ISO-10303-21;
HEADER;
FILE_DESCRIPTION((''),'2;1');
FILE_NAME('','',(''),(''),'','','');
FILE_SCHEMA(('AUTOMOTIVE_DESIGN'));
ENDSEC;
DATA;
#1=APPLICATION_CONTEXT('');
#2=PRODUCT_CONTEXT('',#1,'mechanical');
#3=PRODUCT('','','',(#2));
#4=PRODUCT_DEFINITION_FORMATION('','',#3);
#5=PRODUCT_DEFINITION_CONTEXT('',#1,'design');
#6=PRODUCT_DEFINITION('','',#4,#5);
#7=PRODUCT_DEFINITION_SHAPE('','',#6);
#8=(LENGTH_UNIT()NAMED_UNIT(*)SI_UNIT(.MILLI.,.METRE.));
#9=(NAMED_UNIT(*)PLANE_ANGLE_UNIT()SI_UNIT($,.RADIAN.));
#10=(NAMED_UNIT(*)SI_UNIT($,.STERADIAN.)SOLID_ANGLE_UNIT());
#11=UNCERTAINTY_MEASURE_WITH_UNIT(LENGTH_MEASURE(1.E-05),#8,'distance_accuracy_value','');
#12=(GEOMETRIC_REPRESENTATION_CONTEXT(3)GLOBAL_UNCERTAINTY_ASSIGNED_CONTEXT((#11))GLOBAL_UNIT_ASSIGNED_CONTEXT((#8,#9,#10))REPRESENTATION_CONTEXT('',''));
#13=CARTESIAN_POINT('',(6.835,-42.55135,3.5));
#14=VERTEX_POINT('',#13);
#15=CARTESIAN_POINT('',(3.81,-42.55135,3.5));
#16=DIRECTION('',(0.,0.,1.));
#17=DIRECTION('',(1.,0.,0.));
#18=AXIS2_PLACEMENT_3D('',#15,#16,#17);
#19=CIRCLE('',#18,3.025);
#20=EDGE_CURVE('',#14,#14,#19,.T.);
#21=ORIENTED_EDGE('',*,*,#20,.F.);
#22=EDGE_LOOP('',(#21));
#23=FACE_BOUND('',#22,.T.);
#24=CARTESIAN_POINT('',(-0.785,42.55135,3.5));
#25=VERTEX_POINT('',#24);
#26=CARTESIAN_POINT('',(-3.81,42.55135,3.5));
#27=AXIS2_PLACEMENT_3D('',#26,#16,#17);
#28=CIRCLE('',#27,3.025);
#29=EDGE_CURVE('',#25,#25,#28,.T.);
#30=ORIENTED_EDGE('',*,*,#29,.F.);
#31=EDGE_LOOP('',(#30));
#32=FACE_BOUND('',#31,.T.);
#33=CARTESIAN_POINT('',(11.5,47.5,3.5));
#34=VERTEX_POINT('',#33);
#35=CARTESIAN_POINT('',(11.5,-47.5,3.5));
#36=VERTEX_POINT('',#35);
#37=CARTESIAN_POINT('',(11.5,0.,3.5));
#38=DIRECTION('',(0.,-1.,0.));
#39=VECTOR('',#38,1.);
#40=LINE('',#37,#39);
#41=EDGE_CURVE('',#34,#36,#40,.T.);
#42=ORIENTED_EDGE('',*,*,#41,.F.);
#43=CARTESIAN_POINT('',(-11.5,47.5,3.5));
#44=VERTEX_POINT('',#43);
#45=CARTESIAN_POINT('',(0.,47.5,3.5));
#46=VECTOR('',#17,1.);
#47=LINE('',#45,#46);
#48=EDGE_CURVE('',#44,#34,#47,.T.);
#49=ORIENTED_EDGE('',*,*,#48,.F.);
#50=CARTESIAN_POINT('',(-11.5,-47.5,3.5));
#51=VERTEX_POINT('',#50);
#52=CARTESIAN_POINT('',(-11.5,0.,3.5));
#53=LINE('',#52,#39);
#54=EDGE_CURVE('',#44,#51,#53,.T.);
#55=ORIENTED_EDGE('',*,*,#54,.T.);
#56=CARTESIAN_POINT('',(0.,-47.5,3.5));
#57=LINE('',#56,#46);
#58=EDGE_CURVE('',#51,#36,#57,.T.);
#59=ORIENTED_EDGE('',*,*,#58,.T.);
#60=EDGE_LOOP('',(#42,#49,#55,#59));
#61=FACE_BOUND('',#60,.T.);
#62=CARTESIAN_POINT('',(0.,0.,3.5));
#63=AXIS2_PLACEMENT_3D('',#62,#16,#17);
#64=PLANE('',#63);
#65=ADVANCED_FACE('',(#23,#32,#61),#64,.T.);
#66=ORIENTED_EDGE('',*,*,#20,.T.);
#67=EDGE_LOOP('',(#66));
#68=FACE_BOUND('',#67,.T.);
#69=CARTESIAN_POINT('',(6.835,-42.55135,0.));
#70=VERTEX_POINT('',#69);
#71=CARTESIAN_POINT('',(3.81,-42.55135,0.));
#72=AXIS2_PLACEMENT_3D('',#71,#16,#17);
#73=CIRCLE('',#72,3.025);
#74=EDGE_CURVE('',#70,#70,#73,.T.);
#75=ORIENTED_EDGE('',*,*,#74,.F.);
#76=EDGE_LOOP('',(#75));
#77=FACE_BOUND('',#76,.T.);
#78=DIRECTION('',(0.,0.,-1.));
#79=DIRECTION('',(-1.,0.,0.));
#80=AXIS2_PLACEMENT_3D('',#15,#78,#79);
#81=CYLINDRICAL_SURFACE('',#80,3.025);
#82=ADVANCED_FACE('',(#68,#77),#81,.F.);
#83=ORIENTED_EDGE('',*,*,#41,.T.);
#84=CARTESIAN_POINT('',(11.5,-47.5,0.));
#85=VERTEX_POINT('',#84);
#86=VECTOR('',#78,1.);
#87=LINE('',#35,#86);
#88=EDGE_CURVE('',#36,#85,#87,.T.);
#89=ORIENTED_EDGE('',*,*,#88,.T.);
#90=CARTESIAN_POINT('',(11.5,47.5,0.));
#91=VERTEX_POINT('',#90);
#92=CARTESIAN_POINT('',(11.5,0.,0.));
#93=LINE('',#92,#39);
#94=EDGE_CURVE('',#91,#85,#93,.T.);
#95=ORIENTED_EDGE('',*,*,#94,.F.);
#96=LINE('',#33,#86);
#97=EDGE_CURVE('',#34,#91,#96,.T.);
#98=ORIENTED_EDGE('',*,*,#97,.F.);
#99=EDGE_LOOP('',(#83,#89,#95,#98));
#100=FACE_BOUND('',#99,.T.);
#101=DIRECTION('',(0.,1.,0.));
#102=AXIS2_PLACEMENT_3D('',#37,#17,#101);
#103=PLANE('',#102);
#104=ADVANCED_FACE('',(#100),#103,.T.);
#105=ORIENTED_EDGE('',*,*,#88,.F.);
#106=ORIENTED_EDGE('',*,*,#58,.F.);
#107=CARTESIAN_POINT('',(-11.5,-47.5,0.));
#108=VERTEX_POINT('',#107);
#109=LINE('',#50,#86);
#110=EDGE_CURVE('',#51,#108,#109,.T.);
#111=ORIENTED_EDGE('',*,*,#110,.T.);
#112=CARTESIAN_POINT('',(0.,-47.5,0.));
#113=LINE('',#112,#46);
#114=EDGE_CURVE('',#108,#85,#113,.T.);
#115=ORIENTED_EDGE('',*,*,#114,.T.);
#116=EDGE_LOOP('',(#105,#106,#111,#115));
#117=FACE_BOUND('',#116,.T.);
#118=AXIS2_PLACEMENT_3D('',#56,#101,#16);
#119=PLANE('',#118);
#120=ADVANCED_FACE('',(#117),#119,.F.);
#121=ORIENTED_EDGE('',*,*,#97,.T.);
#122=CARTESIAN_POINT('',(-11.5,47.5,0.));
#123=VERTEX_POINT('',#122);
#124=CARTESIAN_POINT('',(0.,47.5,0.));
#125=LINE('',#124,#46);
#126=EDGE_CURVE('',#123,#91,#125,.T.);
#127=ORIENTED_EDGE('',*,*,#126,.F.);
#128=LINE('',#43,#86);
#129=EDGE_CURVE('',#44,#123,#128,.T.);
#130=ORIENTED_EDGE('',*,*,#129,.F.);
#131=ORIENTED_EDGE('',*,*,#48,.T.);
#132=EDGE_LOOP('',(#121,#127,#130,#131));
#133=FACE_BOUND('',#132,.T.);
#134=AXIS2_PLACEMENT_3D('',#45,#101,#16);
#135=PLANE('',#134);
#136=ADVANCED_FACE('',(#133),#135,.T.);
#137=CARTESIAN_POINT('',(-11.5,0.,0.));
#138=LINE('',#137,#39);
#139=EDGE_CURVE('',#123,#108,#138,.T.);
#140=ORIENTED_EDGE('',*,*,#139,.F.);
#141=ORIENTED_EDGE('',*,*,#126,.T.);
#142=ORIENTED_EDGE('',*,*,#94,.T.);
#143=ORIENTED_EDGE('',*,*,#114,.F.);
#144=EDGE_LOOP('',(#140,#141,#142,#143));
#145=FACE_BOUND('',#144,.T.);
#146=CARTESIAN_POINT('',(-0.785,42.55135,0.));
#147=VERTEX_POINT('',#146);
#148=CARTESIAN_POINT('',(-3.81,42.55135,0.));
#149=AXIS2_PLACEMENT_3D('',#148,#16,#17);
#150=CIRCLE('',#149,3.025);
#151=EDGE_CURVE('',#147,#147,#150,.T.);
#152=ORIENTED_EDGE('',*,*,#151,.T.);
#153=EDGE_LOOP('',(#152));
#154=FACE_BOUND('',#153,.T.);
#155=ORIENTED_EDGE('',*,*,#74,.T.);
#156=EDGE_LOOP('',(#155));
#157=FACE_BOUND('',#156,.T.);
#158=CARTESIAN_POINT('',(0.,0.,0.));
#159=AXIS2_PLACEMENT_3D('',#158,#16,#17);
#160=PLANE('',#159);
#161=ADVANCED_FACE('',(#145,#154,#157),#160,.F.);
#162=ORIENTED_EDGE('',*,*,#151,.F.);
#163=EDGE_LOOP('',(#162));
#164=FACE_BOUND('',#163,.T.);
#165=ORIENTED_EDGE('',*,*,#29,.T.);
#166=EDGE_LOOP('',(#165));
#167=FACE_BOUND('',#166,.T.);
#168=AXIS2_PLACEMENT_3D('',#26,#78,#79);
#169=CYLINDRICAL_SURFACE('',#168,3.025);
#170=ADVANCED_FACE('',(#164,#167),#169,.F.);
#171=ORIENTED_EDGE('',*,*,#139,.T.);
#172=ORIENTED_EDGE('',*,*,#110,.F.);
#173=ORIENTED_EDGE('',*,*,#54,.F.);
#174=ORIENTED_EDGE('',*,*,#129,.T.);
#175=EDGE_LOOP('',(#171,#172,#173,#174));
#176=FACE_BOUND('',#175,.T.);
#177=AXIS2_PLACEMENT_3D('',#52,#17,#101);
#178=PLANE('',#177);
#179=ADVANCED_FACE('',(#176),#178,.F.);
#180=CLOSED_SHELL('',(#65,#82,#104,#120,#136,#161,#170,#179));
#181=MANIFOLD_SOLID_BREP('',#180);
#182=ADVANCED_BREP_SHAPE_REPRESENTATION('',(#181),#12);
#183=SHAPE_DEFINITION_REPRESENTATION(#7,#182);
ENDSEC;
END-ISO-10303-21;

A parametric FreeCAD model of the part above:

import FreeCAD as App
import Part
import Sketcher
from FreeCAD import Vector
Q = App.Units.Quantity


def add_polygon(sketch, points):
    """Adds a closed chain of lines whose ends are joined by coincident constraints."""
    first, n = sketch.GeometryCount, len(points)
    for a, b in zip(points, points[1:] + points[:1]):
        sketch.addGeometry(Part.LineSegment(App.Vector(*a, 0), App.Vector(*b, 0)), False)
    for i in range(n):
        sketch.addConstraint(Sketcher.Constraint("Coincident", first + i, 2, first + (i + 1) % n, 1))

doc = App.newDocument("Part")
body = doc.addObject("PartDesign::Body", "Body")

# Sketch on XY plane
sketch1 = doc.addObject("Sketcher::SketchObject", "Sketch")
body.addObject(sketch1)
sketch1.AttachmentSupport = (doc.XY_Plane, [""])
sketch1.MapMode = "FlatFace"
add_polygon(sketch1, [(-11.5, 47.5), (-11.5, -47.5), (11.5, -47.5), (11.5, 47.5)])  # lines 0-3
sketch1.addGeometry(Part.Circle(Vector(3.8, -42.6, 0), Vector(0, 0, 1), 3), False)  # 4
sketch1.addGeometry(Part.Circle(Vector(-3.8, 42.6, 0), Vector(0, 0, 1), 3), False)  # 5
sketch1.addConstraint(Sketcher.Constraint("Vertical", 0))
sketch1.addConstraint(Sketcher.Constraint("Horizontal", 1))
sketch1.addConstraint(Sketcher.Constraint("Vertical", 2))
sketch1.addConstraint(Sketcher.Constraint("Horizontal", 3))
sketch1.addConstraint(Sketcher.Constraint("Equal", 4, 5))
sketch1.addConstraint(Sketcher.Constraint("Symmetric", 4, 3, 5, 3, -1, 1))
sketch1.addConstraint(Sketcher.Constraint("Symmetric", 0, 2, 2, 2, -1, 1))
sketch1.addConstraint(Sketcher.Constraint("Diameter", 4, Q("6.05 mm")))
sketch1.addConstraint(Sketcher.Constraint("DistanceX", 1, 1, 1, 2, Q("23 mm")))
sketch1.addConstraint(Sketcher.Constraint("DistanceY", 0, 2, 0, 1, Q("95 mm")))
sketch1.addConstraint(Sketcher.Constraint("DistanceX", -1, 1, 4, 3, Q("3.81 mm")))
sketch1.addConstraint(Sketcher.Constraint("DistanceY", 4, 3, 5, 3, Q("85.1027 mm")))
pad1 = doc.addObject("PartDesign::Pad", "Pad")
body.addObject(pad1)
pad1.Profile = sketch1
pad1.Length = 3.5

doc.recompute()
